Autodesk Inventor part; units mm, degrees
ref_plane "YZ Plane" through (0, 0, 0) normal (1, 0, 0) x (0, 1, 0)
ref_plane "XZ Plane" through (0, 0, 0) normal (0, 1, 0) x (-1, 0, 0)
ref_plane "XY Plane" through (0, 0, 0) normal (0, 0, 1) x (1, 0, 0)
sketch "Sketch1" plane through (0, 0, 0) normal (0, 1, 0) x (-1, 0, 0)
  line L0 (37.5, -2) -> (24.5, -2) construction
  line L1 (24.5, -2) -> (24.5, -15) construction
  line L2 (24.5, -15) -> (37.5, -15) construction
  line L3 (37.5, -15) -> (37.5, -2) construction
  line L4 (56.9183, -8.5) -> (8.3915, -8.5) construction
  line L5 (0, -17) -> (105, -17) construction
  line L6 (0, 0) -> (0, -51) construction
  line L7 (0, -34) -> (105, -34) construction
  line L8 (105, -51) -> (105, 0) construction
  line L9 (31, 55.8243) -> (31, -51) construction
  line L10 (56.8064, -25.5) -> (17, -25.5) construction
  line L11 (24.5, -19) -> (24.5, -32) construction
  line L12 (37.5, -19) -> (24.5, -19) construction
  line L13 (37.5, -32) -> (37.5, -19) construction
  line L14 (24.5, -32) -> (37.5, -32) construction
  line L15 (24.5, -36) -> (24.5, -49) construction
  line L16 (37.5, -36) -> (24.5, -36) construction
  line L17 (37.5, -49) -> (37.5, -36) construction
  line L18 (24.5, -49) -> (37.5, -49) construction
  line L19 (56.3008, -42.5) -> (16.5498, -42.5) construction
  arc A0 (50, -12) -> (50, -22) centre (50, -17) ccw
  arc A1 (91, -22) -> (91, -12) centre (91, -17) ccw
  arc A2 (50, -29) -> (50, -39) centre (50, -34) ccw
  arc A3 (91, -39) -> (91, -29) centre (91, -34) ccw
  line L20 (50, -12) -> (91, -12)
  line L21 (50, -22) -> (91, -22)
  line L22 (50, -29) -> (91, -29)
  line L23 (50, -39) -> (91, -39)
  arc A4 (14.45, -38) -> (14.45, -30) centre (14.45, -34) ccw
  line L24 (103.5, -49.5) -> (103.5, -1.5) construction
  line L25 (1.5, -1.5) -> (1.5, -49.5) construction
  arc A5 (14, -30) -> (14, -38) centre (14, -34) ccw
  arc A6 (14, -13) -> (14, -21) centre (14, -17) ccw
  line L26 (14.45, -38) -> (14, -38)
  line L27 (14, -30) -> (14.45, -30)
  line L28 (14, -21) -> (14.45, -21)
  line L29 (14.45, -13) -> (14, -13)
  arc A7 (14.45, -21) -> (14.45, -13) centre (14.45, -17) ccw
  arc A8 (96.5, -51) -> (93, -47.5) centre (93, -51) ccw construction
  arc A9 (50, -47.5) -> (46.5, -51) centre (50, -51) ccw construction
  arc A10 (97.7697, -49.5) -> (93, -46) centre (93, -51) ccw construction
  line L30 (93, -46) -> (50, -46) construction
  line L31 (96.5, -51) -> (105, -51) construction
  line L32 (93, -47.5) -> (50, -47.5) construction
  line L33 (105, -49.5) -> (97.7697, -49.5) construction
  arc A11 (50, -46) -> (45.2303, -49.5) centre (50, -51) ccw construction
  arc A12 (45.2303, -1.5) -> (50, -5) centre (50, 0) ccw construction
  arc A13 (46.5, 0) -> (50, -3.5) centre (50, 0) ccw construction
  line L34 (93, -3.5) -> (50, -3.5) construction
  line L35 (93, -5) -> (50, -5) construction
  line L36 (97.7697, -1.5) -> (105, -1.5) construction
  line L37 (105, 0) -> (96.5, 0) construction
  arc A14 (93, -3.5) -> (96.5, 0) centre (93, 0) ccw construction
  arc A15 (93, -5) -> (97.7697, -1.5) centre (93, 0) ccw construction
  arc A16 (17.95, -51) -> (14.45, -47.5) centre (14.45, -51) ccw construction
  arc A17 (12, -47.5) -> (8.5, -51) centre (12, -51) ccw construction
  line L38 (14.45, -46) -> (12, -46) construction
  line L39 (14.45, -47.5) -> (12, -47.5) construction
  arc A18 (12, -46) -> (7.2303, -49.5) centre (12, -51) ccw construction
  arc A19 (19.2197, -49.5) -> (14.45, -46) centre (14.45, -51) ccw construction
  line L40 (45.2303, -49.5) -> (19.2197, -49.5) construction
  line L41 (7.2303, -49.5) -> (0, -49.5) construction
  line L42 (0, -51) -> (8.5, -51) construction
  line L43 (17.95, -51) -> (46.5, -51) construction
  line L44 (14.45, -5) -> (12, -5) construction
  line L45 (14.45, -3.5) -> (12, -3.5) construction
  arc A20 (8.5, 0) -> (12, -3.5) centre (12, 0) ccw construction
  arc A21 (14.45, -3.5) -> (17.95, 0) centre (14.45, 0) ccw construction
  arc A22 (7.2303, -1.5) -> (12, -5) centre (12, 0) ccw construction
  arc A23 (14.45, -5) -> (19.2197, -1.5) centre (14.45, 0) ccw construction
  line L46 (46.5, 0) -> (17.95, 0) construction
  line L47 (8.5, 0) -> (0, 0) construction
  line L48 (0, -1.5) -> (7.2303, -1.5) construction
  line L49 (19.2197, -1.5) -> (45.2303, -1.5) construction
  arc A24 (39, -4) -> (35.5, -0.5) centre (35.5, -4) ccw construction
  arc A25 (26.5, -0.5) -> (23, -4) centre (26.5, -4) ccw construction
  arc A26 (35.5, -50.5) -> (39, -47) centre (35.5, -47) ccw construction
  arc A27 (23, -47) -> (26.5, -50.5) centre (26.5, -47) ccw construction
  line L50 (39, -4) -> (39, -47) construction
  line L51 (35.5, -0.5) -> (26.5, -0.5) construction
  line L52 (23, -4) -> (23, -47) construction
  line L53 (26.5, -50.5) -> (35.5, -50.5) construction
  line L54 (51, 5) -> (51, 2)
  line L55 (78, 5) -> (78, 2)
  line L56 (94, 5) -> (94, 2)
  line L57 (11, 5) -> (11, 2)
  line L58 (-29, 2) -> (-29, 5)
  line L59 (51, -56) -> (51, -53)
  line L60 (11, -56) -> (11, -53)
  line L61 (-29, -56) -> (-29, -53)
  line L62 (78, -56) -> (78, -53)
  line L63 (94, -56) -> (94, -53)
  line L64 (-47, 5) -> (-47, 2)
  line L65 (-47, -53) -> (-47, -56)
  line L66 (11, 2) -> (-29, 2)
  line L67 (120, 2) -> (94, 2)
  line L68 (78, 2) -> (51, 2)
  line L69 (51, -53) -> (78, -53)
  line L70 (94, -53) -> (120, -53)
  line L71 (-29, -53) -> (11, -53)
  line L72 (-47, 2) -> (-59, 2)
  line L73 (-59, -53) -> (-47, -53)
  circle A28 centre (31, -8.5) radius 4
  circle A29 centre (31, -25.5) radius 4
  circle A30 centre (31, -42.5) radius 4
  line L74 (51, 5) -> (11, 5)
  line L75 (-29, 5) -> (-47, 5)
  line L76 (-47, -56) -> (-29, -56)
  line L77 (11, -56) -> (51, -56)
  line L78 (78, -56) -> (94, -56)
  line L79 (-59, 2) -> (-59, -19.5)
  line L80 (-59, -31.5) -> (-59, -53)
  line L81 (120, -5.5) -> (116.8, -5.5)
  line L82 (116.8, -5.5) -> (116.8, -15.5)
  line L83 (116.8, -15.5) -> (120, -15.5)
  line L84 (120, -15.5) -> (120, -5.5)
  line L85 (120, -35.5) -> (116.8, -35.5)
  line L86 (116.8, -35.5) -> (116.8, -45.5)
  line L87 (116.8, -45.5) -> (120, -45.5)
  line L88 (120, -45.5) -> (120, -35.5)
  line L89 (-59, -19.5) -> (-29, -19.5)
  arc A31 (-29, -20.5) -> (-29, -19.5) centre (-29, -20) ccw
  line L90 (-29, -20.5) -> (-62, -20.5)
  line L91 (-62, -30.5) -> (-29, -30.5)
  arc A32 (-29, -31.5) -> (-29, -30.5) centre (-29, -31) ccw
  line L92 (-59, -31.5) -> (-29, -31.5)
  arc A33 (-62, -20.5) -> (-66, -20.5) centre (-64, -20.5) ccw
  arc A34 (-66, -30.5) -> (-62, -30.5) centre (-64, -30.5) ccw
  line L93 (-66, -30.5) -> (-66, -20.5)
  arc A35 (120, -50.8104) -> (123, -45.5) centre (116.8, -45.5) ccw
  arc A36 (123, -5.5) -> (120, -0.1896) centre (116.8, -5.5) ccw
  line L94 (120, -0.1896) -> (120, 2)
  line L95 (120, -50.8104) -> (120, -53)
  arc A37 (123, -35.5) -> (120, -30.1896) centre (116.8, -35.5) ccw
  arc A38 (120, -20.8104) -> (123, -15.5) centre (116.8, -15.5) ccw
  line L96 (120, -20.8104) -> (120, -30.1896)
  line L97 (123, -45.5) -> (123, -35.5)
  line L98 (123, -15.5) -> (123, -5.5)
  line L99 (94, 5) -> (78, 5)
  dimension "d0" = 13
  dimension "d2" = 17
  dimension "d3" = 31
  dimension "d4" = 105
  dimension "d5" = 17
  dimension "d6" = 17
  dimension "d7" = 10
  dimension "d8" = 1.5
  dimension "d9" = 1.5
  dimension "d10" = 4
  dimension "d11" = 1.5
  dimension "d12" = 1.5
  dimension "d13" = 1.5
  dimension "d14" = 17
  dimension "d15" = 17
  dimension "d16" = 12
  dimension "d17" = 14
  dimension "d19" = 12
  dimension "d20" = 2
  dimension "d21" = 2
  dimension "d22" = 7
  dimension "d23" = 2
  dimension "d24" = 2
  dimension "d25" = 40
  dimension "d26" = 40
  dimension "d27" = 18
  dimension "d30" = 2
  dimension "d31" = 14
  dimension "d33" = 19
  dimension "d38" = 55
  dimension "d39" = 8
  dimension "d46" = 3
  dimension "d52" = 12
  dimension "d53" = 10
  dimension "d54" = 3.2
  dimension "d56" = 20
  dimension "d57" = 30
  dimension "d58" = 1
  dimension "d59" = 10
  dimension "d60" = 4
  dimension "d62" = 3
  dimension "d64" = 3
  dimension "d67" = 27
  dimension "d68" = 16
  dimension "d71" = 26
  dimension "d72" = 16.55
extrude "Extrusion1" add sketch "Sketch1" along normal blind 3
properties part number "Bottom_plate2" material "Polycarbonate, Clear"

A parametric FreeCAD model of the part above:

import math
import FreeCAD as App
import Part
import Sketcher
Q = App.Units.Quantity

doc = App.newDocument("Part")
body = doc.addObject("PartDesign::Body", "Body")

# Sketch on XZ plane
sketch1 = body.newObject("Sketcher::SketchObject", "Sketch")
sketch1.AttachmentSupport = (doc.getObject("XZ_Plane"), [""])
sketch1.MapMode = "FlatFace"
sketch1.addGeometry([
    Part.LineSegment(App.Vector(-51, 2, 0), App.Vector(-51, 5, 0)),  # 0
    Part.LineSegment(App.Vector(-51, 5, 0), App.Vector(-11, 5, 0)),  # 1
    Part.LineSegment(App.Vector(-11, 5, 0), App.Vector(-11, 2, 0)),  # 2
    Part.LineSegment(App.Vector(-11, 2, 0), App.Vector(29, 2, 0)),  # 3
    Part.LineSegment(App.Vector(29, 2, 0), App.Vector(29, 5, 0)),  # 4
    Part.LineSegment(App.Vector(29, 5, 0), App.Vector(47, 5, 0)),  # 5
    Part.LineSegment(App.Vector(47, 5, 0), App.Vector(47, 2, 0)),  # 6
    Part.LineSegment(App.Vector(47, 2, 0), App.Vector(59, 2, 0)),  # 7
    Part.LineSegment(App.Vector(59, 2, 0), App.Vector(59, -19.5, 0)),  # 8
    Part.LineSegment(App.Vector(59, -19.5, 0), App.Vector(29, -19.5, 0)),  # 9
    Part.ArcOfCircle(Part.Circle(App.Vector(29, -20, 0), App.Vector(0, 0, 1), 0.5), math.radians(90), math.radians(270)),  # 10
    Part.LineSegment(App.Vector(29, -20.5, 0), App.Vector(62, -20.5, 0)),  # 11
    Part.ArcOfCircle(Part.Circle(App.Vector(64, -20.5, 0), App.Vector(0, 0, 1), 2), math.radians(0), math.radians(180)),  # 12
    Part.LineSegment(App.Vector(66, -20.5, 0), App.Vector(66, -30.5, 0)),  # 13
    Part.ArcOfCircle(Part.Circle(App.Vector(64, -30.5, 0), App.Vector(0, 0, 1), 2), math.radians(180), math.radians(360)),  # 14
    Part.LineSegment(App.Vector(62, -30.5, 0), App.Vector(29, -30.5, 0)),  # 15
    Part.ArcOfCircle(Part.Circle(App.Vector(29, -31, 0), App.Vector(0, 0, 1), 0.5), math.radians(90), math.radians(270)),  # 16
    Part.LineSegment(App.Vector(29, -31.5, 0), App.Vector(59, -31.5, 0)),  # 17
    Part.LineSegment(App.Vector(59, -31.5, 0), App.Vector(59, -53, 0)),  # 18
    Part.LineSegment(App.Vector(59, -53, 0), App.Vector(47, -53, 0)),  # 19
    Part.LineSegment(App.Vector(47, -53, 0), App.Vector(47, -56, 0)),  # 20
    Part.LineSegment(App.Vector(47, -56, 0), App.Vector(29, -56, 0)),  # 21
    Part.LineSegment(App.Vector(29, -56, 0), App.Vector(29, -53, 0)),  # 22
    Part.LineSegment(App.Vector(29, -53, 0), App.Vector(-11, -53, 0)),  # 23
    Part.LineSegment(App.Vector(-11, -53, 0), App.Vector(-11, -56, 0)),  # 24
    Part.LineSegment(App.Vector(-11, -56, 0), App.Vector(-51, -56, 0)),  # 25
    Part.LineSegment(App.Vector(-51, -56, 0), App.Vector(-51, -53, 0)),  # 26
    Part.LineSegment(App.Vector(-51, -53, 0), App.Vector(-78, -53, 0)),  # 27
    Part.LineSegment(App.Vector(-78, -53, 0), App.Vector(-78, -56, 0)),  # 28
    Part.LineSegment(App.Vector(-78, -56, 0), App.Vector(-94, -56, 0)),  # 29
    Part.LineSegment(App.Vector(-94, -56, 0), App.Vector(-94, -53, 0)),  # 30
    Part.LineSegment(App.Vector(-94, -53, 0), App.Vector(-120, -53, 0)),  # 31
    Part.LineSegment(App.Vector(-120, -53, 0), App.Vector(-120, -50.8104, 0)),  # 32
    Part.ArcOfCircle(Part.Circle(App.Vector(-116.8, -45.5, 0), App.Vector(0, 0, 1), 6.200028), math.radians(180), math.radians(238.927205)),  # 33
    Part.LineSegment(App.Vector(-123, -45.5, 0), App.Vector(-123, -35.5, 0)),  # 34
    Part.ArcOfCircle(Part.Circle(App.Vector(-116.8, -35.5, 0), App.Vector(0, 0, 1), 6.2), math.radians(121.072795), math.radians(180)),  # 35
    Part.LineSegment(App.Vector(-120, -30.1896, 0), App.Vector(-120, -20.8104, 0)),  # 36
    Part.ArcOfCircle(Part.Circle(App.Vector(-116.8, -15.5, 0), App.Vector(0, 0, 1), 6.200028), math.radians(180), math.radians(238.927205)),  # 37
    Part.LineSegment(App.Vector(-123, -15.5, 0), App.Vector(-123, -5.5, 0)),  # 38
    Part.ArcOfCircle(Part.Circle(App.Vector(-116.8, -5.5, 0), App.Vector(0, 0, 1), 6.2), math.radians(121.072795), math.radians(180)),  # 39
    Part.LineSegment(App.Vector(-120, -0.1896, 0), App.Vector(-120, 2, 0)),  # 40
    Part.LineSegment(App.Vector(-120, 2, 0), App.Vector(-94, 2, 0)),  # 41
    Part.LineSegment(App.Vector(-94, 2, 0), App.Vector(-94, 5, 0)),  # 42
    Part.LineSegment(App.Vector(-94, 5, 0), App.Vector(-78, 5, 0)),  # 43
    Part.LineSegment(App.Vector(-78, 5, 0), App.Vector(-78, 2, 0)),  # 44
    Part.LineSegment(App.Vector(-78, 2, 0), App.Vector(-51, 2, 0)),  # 45
    Part.ArcOfCircle(Part.Circle(App.Vector(-14.45, -34, 0), App.Vector(0, 0, 1), 4), math.radians(90), math.radians(270)),  # 46
    Part.LineSegment(App.Vector(-14.45, -38, 0), App.Vector(-14, -38, 0)),  # 47
    Part.ArcOfCircle(Part.Circle(App.Vector(-14, -34, 0), App.Vector(0, 0, 1), 4), math.radians(-90), math.radians(90)),  # 48
    Part.LineSegment(App.Vector(-14, -30, 0), App.Vector(-14.45, -30, 0)),  # 49
    Part.Circle(App.Vector(-31, -42.5, 0), App.Vector(0, 0, 1), 4),  # 50
    Part.ArcOfCircle(Part.Circle(App.Vector(-50, -34, 0), App.Vector(0, 0, 1), 5), math.radians(-90), math.radians(90)),  # 51
    Part.LineSegment(App.Vector(-50, -29, 0), App.Vector(-91, -29, 0)),  # 52
    Part.ArcOfCircle(Part.Circle(App.Vector(-91, -34, 0), App.Vector(0, 0, 1), 5), math.radians(90), math.radians(270)),  # 53
    Part.LineSegment(App.Vector(-91, -39, 0), App.Vector(-50, -39, 0)),  # 54
    Part.LineSegment(App.Vector(-116.8, -35.5, 0), App.Vector(-120, -35.5, 0)),  # 55
    Part.LineSegment(App.Vector(-120, -35.5, 0), App.Vector(-120, -45.5, 0)),  # 56
    Part.LineSegment(App.Vector(-120, -45.5, 0), App.Vector(-116.8, -45.5, 0)),  # 57
    Part.LineSegment(App.Vector(-116.8, -45.5, 0), App.Vector(-116.8, -35.5, 0)),  # 58
    Part.ArcOfCircle(Part.Circle(App.Vector(-14, -17, 0), App.Vector(0, 0, 1), 4), math.radians(-90), math.radians(90)),  # 59
    Part.LineSegment(App.Vector(-14, -13, 0), App.Vector(-14.45, -13, 0)),  # 60
    Part.ArcOfCircle(Part.Circle(App.Vector(-14.45, -17, 0), App.Vector(0, 0, 1), 4), math.radians(90), math.radians(270)),  # 61
    Part.LineSegment(App.Vector(-14.45, -21, 0), App.Vector(-14, -21, 0)),  # 62
    Part.Circle(App.Vector(-31, -25.5, 0), App.Vector(0, 0, 1), 4),  # 63
    Part.ArcOfCircle(Part.Circle(App.Vector(-50, -17, 0), App.Vector(0, 0, 1), 5), math.radians(-90), math.radians(90)),  # 64
    Part.LineSegment(App.Vector(-50, -12, 0), App.Vector(-91, -12, 0)),  # 65
    Part.ArcOfCircle(Part.Circle(App.Vector(-91, -17, 0), App.Vector(0, 0, 1), 5), math.radians(90), math.radians(270)),  # 66
    Part.LineSegment(App.Vector(-91, -22, 0), App.Vector(-50, -22, 0)),  # 67
    Part.LineSegment(App.Vector(-116.8, -5.5, 0), App.Vector(-120, -5.5, 0)),  # 68
    Part.LineSegment(App.Vector(-120, -5.5, 0), App.Vector(-120, -15.5, 0)),  # 69
    Part.LineSegment(App.Vector(-120, -15.5, 0), App.Vector(-116.8, -15.5, 0)),  # 70
    Part.LineSegment(App.Vector(-116.8, -15.5, 0), App.Vector(-116.8, -5.5, 0)),  # 71
    Part.Circle(App.Vector(-31, -8.5, 0), App.Vector(0, 0, 1), 4),  # 72
], False)
sketch1.addConstraint([
    Sketcher.Constraint("Coincident", 0, 2, 1, 1),
    Sketcher.Constraint("Coincident", 1, 2, 2, 1),
    Sketcher.Constraint("Coincident", 2, 2, 3, 1),
    Sketcher.Constraint("Coincident", 3, 2, 4, 1),
    Sketcher.Constraint("Coincident", 4, 2, 5, 1),
    Sketcher.Constraint("Coincident", 5, 2, 6, 1),
    Sketcher.Constraint("Coincident", 6, 2, 7, 1),
    Sketcher.Constraint("Coincident", 7, 2, 8, 1),
    Sketcher.Constraint("Coincident", 8, 2, 9, 1),
    Sketcher.Constraint("Tangent", 9, 2, 10, 1),
    Sketcher.Constraint("Tangent", 10, 2, 11, 1),
    Sketcher.Constraint("Coincident", 11, 2, 12, 2),
    Sketcher.Constraint("Tangent", 12, 1, 13, 1),
    Sketcher.Constraint("Tangent", 13, 2, 14, 2),
    Sketcher.Constraint("Coincident", 14, 1, 15, 1),
    Sketcher.Constraint("Tangent", 15, 2, 16, 1),
    Sketcher.Constraint("Tangent", 16, 2, 17, 1),
    Sketcher.Constraint("Coincident", 17, 2, 18, 1),
    Sketcher.Constraint("Coincident", 18, 2, 19, 1),
    Sketcher.Constraint("Coincident", 19, 2, 20, 1),
    Sketcher.Constraint("Coincident", 20, 2, 21, 1),
    Sketcher.Constraint("Coincident", 21, 2, 22, 1),
    Sketcher.Constraint("Coincident", 22, 2, 23, 1),
    Sketcher.Constraint("Coincident", 23, 2, 24, 1),
    Sketcher.Constraint("Coincident", 24, 2, 25, 1),
    Sketcher.Constraint("Coincident", 25, 2, 26, 1),
    Sketcher.Constraint("Coincident", 26, 2, 27, 1),
    Sketcher.Constraint("Coincident", 27, 2, 28, 1),
    Sketcher.Constraint("Coincident", 28, 2, 29, 1),
    Sketcher.Constraint("Coincident", 29, 2, 30, 1),
    Sketcher.Constraint("Coincident", 30, 2, 31, 1),
    Sketcher.Constraint("Coincident", 31, 2, 32, 1),
    Sketcher.Constraint("Coincident", 32, 2, 33, 2),
    Sketcher.Constraint("Tangent", 33, 1, 34, 1),
    Sketcher.Constraint("Tangent", 34, 2, 35, 2),
    Sketcher.Constraint("Coincident", 35, 1, 36, 1),
    Sketcher.Constraint("Coincident", 36, 2, 37, 2),
    Sketcher.Constraint("Tangent", 37, 1, 38, 1),
    Sketcher.Constraint("Tangent", 38, 2, 39, 2),
    Sketcher.Constraint("Coincident", 39, 1, 40, 1),
    Sketcher.Constraint("Coincident", 40, 2, 41, 1),
    Sketcher.Constraint("Coincident", 41, 2, 42, 1),
    Sketcher.Constraint("Coincident", 42, 2, 43, 1),
    Sketcher.Constraint("Coincident", 43, 2, 44, 1),
    Sketcher.Constraint("Coincident", 44, 2, 45, 1),
    Sketcher.Constraint("Coincident", 45, 2, 0, 1),
    Sketcher.Constraint("Tangent", 46, 2, 47, 1),
    Sketcher.Constraint("Tangent", 47, 2, 48, 1),
    Sketcher.Constraint("Tangent", 48, 2, 49, 1),
    Sketcher.Constraint("Tangent", 49, 2, 46, 1),
    Sketcher.Constraint("Tangent", 51, 2, 52, 1),
    Sketcher.Constraint("Tangent", 52, 2, 53, 1),
    Sketcher.Constraint("Tangent", 53, 2, 54, 1),
    Sketcher.Constraint("Tangent", 54, 2, 51, 1),
    Sketcher.Constraint("Coincident", 55, 2, 56, 1),
    Sketcher.Constraint("Coincident", 56, 2, 57, 1),
    Sketcher.Constraint("Coincident", 57, 2, 58, 1),
    Sketcher.Constraint("Coincident", 58, 2, 55, 1),
    Sketcher.Constraint("Tangent", 59, 2, 60, 1),
    Sketcher.Constraint("Tangent", 60, 2, 61, 1),
    Sketcher.Constraint("Tangent", 61, 2, 62, 1),
    Sketcher.Constraint("Tangent", 62, 2, 59, 1),
    Sketcher.Constraint("Tangent", 64, 2, 65, 1),
    Sketcher.Constraint("Tangent", 65, 2, 66, 1),
    Sketcher.Constraint("Tangent", 66, 2, 67, 1),
    Sketcher.Constraint("Tangent", 67, 2, 64, 1),
    Sketcher.Constraint("Coincident", 68, 2, 69, 1),
    Sketcher.Constraint("Coincident", 69, 2, 70, 1),
    Sketcher.Constraint("Coincident", 70, 2, 71, 1),
    Sketcher.Constraint("Coincident", 71, 2, 68, 1),
    Sketcher.Constraint("Vertical", 0),
    Sketcher.Constraint("Horizontal", 1),
    Sketcher.Constraint("Vertical", 2),
    Sketcher.Constraint("Horizontal", 3),
    Sketcher.Constraint("Vertical", 4),
    Sketcher.Constraint("Horizontal", 5),
    Sketcher.Constraint("Vertical", 6),
    Sketcher.Constraint("Horizontal", 7),
    Sketcher.Constraint("Vertical", 8),
    Sketcher.Constraint("Horizontal", 9),
    Sketcher.Constraint("Horizontal", 11),
    Sketcher.Constraint("Vertical", 13),
    Sketcher.Constraint("Horizontal", 15),
    Sketcher.Constraint("Horizontal", 17),
    Sketcher.Constraint("Vertical", 18),
    Sketcher.Constraint("Horizontal", 19),
    Sketcher.Constraint("Vertical", 20),
    Sketcher.Constraint("Horizontal", 21),
    Sketcher.Constraint("Vertical", 22),
    Sketcher.Constraint("Horizontal", 23),
    Sketcher.Constraint("Vertical", 24),
    Sketcher.Constraint("Horizontal", 25),
    Sketcher.Constraint("Vertical", 26),
    Sketcher.Constraint("Horizontal", 27),
    Sketcher.Constraint("Vertical", 28),
    Sketcher.Constraint("Horizontal", 29),
    Sketcher.Constraint("Vertical", 30),
    Sketcher.Constraint("Horizontal", 31),
    Sketcher.Constraint("Vertical", 32),
    Sketcher.Constraint("Vertical", 34),
    Sketcher.Constraint("Vertical", 36),
    Sketcher.Constraint("Vertical", 38),
    Sketcher.Constraint("Vertical", 40),
    Sketcher.Constraint("Horizontal", 41),
    Sketcher.Constraint("Vertical", 42),
    Sketcher.Constraint("Horizontal", 43),
    Sketcher.Constraint("Vertical", 44),
    Sketcher.Constraint("Horizontal", 45),
    Sketcher.Constraint("Horizontal", 47),
    Sketcher.Constraint("Horizontal", 49),
    Sketcher.Constraint("Horizontal", 52),
    Sketcher.Constraint("Horizontal", 54),
    Sketcher.Constraint("Horizontal", 55),
    Sketcher.Constraint("Vertical", 56),
    Sketcher.Constraint("Horizontal", 57),
    Sketcher.Constraint("Vertical", 58),
    Sketcher.Constraint("Horizontal", 60),
    Sketcher.Constraint("Horizontal", 62),
    Sketcher.Constraint("Horizontal", 65),
    Sketcher.Constraint("Horizontal", 67),
    Sketcher.Constraint("Horizontal", 68),
    Sketcher.Constraint("Vertical", 69),
    Sketcher.Constraint("Horizontal", 70),
    Sketcher.Constraint("Vertical", 71),
    Sketcher.Constraint("Coincident", 57, 2, 33, 3),
    Sketcher.Constraint("Coincident", 58, 2, 35, 3),
    Sketcher.Constraint("Coincident", 70, 2, 37, 3),
    Sketcher.Constraint("Coincident", 71, 2, 39, 3),
    Sketcher.Constraint("Equal", 12, 14),
    Sketcher.Constraint("Equal", 10, 16),
    Sketcher.Constraint("Equal", 35, 37),
    Sketcher.Constraint("Equal", 48, 50),
    Sketcher.Constraint("Equal", 50, 59),
    Sketcher.Constraint("Equal", 61, 63),
    Sketcher.Constraint("Equal", 53, 64),
    Sketcher.Constraint("Equal", 63, 72),
    Sketcher.Constraint("Horizontal", 48, 3, 51, 3),
    Sketcher.Constraint("Horizontal", 61, 3, 64, 3),
    Sketcher.Constraint("Horizontal", 1, 2, 4, 2),
    Sketcher.Constraint("Horizontal", 3, 2, 6, 2),
    Sketcher.Constraint("Horizontal", 12, 3, 10, 2),
    Sketcher.Constraint("Horizontal", 13, 2, 14, 1),
    Sketcher.Constraint("Horizontal", 19, 2, 22, 2),
    Sketcher.Constraint("Horizontal", 21, 2, 24, 2),
    Sketcher.Constraint("Horizontal", 23, 2, 26, 2),
    Sketcher.Constraint("Horizontal", 25, 2, 28, 2),
    Sketcher.Constraint("Horizontal", 27, 2, 30, 2),
    Sketcher.Constraint("Horizontal", 7, 2, 40, 2),
    Sketcher.Constraint("Horizontal", 5, 2, 42, 2),
    Sketcher.Constraint("Horizontal", 41, 2, 44, 2),
    Sketcher.Constraint("Vertical", 10, 3, 16, 3),
    Sketcher.Constraint("Vertical", 35, 3, 37, 3),
    Sketcher.Constraint("Vertical", 48, 3, 59, 3),
    Sketcher.Constraint("Vertical", 46, 3, 61, 3),
    Sketcher.Constraint("Vertical", 50, 3, 63, 3),
    Sketcher.Constraint("Vertical", 51, 3, 64, 3),
    Sketcher.Constraint("Vertical", 53, 3, 66, 3),
    Sketcher.Constraint("Vertical", 63, 3, 72, 3),
    Sketcher.Constraint("Vertical", 16, 3, 3, 2),
    Sketcher.Constraint("Vertical", 8, 2, 17, 2),
    Sketcher.Constraint("Vertical", 6, 2, 19, 2),
    Sketcher.Constraint("Vertical", 16, 2, 21, 2),
    Sketcher.Constraint("Vertical", 2, 2, 23, 2),
    Sketcher.Constraint("Vertical", 0, 2, 25, 2),
    Sketcher.Constraint("Vertical", 32, 2, 35, 1),
    Sketcher.Constraint("Vertical", 36, 2, 39, 1),
    Sketcher.Constraint("Vertical", 30, 2, 41, 2),
    Sketcher.Constraint("Vertical", 28, 2, 43, 2),
    Sketcher.Constraint("Vertical", 40, 2, 55, 2),
    Sketcher.Constraint("Vertical", 56, 2, 68, 2),
    Sketcher.Constraint("Equal", 1, 3),
    Sketcher.Constraint("Equal", 8, 18),
    Sketcher.Constraint("Equal", 6, 20),
    Sketcher.Constraint("Equal", 13, 34),
    Sketcher.Constraint("Equal", 34, 38),
    Sketcher.Constraint("Equal", 32, 40),
    Sketcher.Constraint("Diameter", 50, Q("8 mm")),
    Sketcher.Constraint("Radius", 12, Q("2 mm")),
    Sketcher.Constraint("Radius", 51, Q("5 mm")),
    Sketcher.Constraint("Radius", 10, Q("0.5 mm")),
    Sketcher.Constraint("DistanceX", 1, 1, 1, 2, Q("40 mm")),
    Sketcher.Constraint("DistanceX", 5, 1, 5, 2, Q("18 mm")),
    Sketcher.Constraint("DistanceX", 7, 1, 7, 2, Q("12 mm")),
    Sketcher.Constraint("DistanceX", 27, 2, 27, 1, Q("27 mm")),
    Sketcher.Constraint("DistanceX", 29, 2, 29, 1, Q("16 mm")),
    Sketcher.Constraint("DistanceX", 31, 2, 31, 1, Q("26 mm")),
    Sketcher.Constraint("DistanceY", 0, 1, 0, 2, Q("3 mm")),
    Sketcher.Constraint("DistanceY", 13, 2, 13, 1, Q("10 mm")),
    Sketcher.Constraint("DistanceX", 55, 2, 55, 1, Q("3.2 mm")),
    Sketcher.Constraint("DistanceY", 10, 3, -1, 1, Q("20 mm")),
    Sketcher.Constraint("DistanceX", 48, 3, -1, 1, Q("14 mm")),
    Sketcher.Constraint("DistanceX", 50, 3, -1, 1, Q("31 mm")),
    Sketcher.Constraint("DistanceY", 59, 3, -1, 1, Q("17 mm")),
    Sketcher.Constraint("DistanceY", -1, 1, 2, 2, Q("2 mm")),
    Sketcher.Constraint("DistanceY", 48, 2, -1, 1, Q("30 mm")),
    Sketcher.Constraint("Radius", 33, Q("6.2 mm")),
    Sketcher.Constraint("DistanceX", 11, 1, 11, 2, Q("33 mm")),
    Sketcher.Constraint("DistanceX", 52, 2, 52, 1, Q("41 mm")),
    Sketcher.Constraint("DistanceX", -1, 1, 10, 3, Q("29 mm")),
    Sketcher.Constraint("DistanceX", 51, 3, -1, 1, Q("50 mm")),
    Sketcher.Constraint("DistanceX", 47, 1, 47, 2, Q("0.45 mm")),
    Sketcher.Constraint("DistanceY", 33, 3, -1, 1, Q("45.5 mm")),
    Sketcher.Constraint("DistanceY", 50, 3, -1, 1, Q("42.5 mm")),
    Sketcher.Constraint("DistanceY", 63, 3, -1, 1, Q("25.5 mm")),
    Sketcher.Constraint("DistanceY", 72, 3, -1, 1, Q("8.5 mm")),
])
pad1 = body.newObject("PartDesign::Pad", "Pad")
pad1.Profile = sketch1
pad1.Length = 3
pad1.Reversed = True

doc.recompute()
